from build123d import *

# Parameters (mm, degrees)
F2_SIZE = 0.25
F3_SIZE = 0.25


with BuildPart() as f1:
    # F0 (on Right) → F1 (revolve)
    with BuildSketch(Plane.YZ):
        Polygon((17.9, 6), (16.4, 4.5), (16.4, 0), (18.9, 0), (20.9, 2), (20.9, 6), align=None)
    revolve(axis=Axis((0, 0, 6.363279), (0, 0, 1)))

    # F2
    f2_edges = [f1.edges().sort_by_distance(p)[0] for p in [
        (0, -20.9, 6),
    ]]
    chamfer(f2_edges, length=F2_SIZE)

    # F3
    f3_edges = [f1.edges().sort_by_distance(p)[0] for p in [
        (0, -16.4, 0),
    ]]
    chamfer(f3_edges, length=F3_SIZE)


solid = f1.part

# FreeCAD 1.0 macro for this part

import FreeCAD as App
import Part
import Sketcher
Q = App.Units.Quantity


def edges_at(feature, points):
    """Names of the edges that pass closest to the given points."""
    edges = feature.Shape.Edges
    near = lambda p: min(range(len(edges)), key=lambda i: edges[i].distToShape(Part.Vertex(*p))[0])
    return sorted({f"Edge{near(p) + 1}" for p in points})


def add_polygon(sketch, points):
    """Adds a closed chain of lines whose ends are joined by coincident constraints."""
    first, n = sketch.GeometryCount, len(points)
    for a, b in zip(points, points[1:] + points[:1]):
        sketch.addGeometry(Part.LineSegment(App.Vector(*a, 0), App.Vector(*b, 0)), False)
    for i in range(n):
        sketch.addConstraint(Sketcher.Constraint("Coincident", first + i, 2, first + (i + 1) % n, 1))

doc = App.newDocument("Part")
params = doc.addObject("Spreadsheet::Sheet", "Params")
for row, (alias, value) in enumerate([
    ("sketch1_width", "3 mm"),
    ("sketch1_height", "4 mm"),
    ("sketch1_width2", "2.5 mm"),
    ("revolution_angle", "360 deg"),
    ("chamfer_size", "0.25 mm"),
    ("chamfer2_size", "0.25 mm"),
], start=1):
    params.set(f"A{row}", alias)
    params.set(f"B{row}", "=" + value)
    params.setAlias(f"B{row}", alias)

body = doc.addObject("PartDesign::Body", "Body")

# Sketch on YZ plane
sketch1 = body.newObject("Sketcher::SketchObject", "Sketch")
sketch1.AttachmentSupport = (doc.getObject("YZ_Plane"), [""])
sketch1.MapMode = "FlatFace"
add_polygon(sketch1, [(17.9, 6), (16.4, 4.5), (16.4, 0), (18.9, 0), (20.9, 2), (20.9, 6)])  # lines 0-5
sketch1.addConstraint([
    Sketcher.Constraint("Vertical", 1),
    Sketcher.Constraint("Horizontal", 2),
    Sketcher.Constraint("Vertical", 4),
    Sketcher.Constraint("Horizontal", 5),
    Sketcher.Constraint("PointOnObject", 1, 2, -1),
    Sketcher.Constraint("Parallel", 0, 3),
    Sketcher.Constraint("DistanceX", 5, 2, 5, 1, 3.0),
    Sketcher.Constraint("DistanceY", 4, 1, 4, 2, 4.0),
    Sketcher.Constraint("Angle", 0, Q("-135 deg")),
    Sketcher.Constraint("DistanceX", 2, 1, 2, 2, 2.5),
    Sketcher.Constraint("DistanceY", -1, 1, 3, 2, 2.0),
    Sketcher.Constraint("DistanceX", -1, 1, 0, 2, 16.4),
])
sketch1.setExpression("Constraints[12]", "Params.sketch1_width")
sketch1.setExpression("Constraints[13]", "Params.sketch1_height")
sketch1.setExpression("Constraints[15]", "Params.sketch1_width2")
revolution = body.newObject("PartDesign::Revolution", "Revolution")
revolution.Profile = sketch1
revolution.ReferenceAxis = (sketch1, ["V_Axis"])
revolution.setExpression("Angle", "Params.revolution_angle")
doc.recompute()

chamfer = body.newObject("PartDesign::Chamfer", "Chamfer")
chamfer.Base = (revolution, edges_at(revolution, [(0, -20.9, 6)]))
chamfer.setExpression("Size", "Params.chamfer_size")
doc.recompute()

chamfer2 = body.newObject("PartDesign::Chamfer", "Chamfer001")
chamfer2.Base = (chamfer, edges_at(chamfer, [(0, -16.4, 0)]))
chamfer2.setExpression("Size", "Params.chamfer2_size")

doc.recompute()
